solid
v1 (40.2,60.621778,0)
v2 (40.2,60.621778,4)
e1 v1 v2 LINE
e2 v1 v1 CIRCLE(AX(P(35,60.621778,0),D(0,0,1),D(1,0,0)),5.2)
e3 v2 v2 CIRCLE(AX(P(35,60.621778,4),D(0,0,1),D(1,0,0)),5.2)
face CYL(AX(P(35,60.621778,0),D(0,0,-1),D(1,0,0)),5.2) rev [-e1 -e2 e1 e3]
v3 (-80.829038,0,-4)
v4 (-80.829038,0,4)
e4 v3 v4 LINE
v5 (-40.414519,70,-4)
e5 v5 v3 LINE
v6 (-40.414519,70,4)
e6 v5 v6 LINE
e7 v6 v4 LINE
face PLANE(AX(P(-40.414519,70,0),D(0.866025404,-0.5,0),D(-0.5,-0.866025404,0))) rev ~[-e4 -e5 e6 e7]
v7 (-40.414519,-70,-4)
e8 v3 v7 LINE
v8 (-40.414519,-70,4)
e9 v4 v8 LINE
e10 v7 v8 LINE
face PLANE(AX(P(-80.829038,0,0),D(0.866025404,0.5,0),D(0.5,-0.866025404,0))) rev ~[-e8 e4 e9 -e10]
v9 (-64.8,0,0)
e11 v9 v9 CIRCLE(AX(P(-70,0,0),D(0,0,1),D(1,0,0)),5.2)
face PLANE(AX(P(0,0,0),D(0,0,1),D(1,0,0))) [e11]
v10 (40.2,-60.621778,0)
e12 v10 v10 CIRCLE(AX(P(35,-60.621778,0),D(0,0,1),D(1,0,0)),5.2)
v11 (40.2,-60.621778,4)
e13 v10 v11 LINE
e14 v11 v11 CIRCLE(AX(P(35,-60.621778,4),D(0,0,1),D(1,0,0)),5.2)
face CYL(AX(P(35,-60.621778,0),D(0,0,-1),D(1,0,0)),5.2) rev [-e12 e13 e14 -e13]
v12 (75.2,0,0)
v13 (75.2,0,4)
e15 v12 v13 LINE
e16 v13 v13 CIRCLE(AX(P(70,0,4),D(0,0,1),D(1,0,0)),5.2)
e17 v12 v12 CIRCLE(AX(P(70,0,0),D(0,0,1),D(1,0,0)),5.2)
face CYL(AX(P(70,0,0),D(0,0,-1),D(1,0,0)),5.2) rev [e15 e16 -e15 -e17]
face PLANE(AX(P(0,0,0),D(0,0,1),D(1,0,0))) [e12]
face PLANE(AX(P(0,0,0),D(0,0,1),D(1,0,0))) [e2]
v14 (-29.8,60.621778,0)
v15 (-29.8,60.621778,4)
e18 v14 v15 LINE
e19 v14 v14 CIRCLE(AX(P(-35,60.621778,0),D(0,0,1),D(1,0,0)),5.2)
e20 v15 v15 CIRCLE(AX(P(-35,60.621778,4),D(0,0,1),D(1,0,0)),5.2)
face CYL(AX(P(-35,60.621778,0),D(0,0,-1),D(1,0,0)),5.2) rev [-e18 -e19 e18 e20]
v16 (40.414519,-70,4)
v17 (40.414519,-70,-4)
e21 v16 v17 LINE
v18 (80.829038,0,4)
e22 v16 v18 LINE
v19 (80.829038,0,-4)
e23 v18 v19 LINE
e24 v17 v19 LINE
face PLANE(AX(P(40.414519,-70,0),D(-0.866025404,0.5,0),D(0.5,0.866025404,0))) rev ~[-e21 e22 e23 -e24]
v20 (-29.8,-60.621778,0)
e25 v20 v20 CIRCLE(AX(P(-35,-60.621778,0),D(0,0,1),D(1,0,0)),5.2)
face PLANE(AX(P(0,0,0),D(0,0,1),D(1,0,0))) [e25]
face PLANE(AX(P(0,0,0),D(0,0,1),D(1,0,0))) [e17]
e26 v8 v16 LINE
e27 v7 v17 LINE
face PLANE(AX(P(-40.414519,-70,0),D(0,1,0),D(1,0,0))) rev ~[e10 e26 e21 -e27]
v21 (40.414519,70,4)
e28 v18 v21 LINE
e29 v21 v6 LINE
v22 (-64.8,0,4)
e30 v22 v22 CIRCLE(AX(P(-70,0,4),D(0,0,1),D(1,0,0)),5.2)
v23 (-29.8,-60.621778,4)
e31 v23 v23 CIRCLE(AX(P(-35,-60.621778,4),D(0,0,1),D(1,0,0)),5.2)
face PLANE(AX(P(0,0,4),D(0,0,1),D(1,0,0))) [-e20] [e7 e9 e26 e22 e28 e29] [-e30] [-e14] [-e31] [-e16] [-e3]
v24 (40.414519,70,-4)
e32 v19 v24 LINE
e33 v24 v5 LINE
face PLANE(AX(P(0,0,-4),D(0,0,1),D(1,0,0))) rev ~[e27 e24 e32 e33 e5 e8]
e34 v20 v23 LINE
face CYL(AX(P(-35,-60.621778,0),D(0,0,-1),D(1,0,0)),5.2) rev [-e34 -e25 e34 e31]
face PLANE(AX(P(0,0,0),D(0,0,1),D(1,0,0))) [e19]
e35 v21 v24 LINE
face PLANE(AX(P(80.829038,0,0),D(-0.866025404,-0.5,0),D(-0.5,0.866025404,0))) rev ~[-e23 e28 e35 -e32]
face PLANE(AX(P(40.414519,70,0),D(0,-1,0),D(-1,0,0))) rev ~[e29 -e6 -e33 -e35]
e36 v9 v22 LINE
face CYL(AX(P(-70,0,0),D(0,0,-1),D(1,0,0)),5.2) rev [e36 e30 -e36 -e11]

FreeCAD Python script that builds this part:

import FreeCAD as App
import Part
import Sketcher

V = App.Vector
Q = App.Units.Quantity


def add_polygon(sketch, points):
    """Adds a closed chain of lines whose ends are joined by coincident constraints."""
    first, n = sketch.GeometryCount, len(points)
    for a, b in zip(points, points[1:] + points[:1]):
        sketch.addGeometry(Part.LineSegment(App.Vector(*a, 0), App.Vector(*b, 0)), False)
    for i in range(n):
        sketch.addConstraint(Sketcher.Constraint("Coincident", first + i, 2, first + (i + 1) % n, 1))

doc = App.newDocument("Part")
body = doc.addObject("PartDesign::Body", "Body")

# Sketch on XY plane
sketch1 = body.newObject("Sketcher::SketchObject", "Sketch")
sketch1.AttachmentSupport = (doc.getObject("XY_Plane"), [""])
sketch1.MapMode = "FlatFace"
add_polygon(sketch1, [(40.414519, 70), (-40.414519, 70), (-80.829038, 0), (-40.414519, -70), (40.414519, -70), (80.829038, 0)])  # lines 0-5
sketch1.addConstraint(Sketcher.Constraint("Horizontal", 0))
sketch1.addConstraint(Sketcher.Constraint("Horizontal", 3))
sketch1.addConstraint(Sketcher.Constraint("Symmetric", 0, 2, 3, 2, -1, 1))
sketch1.addConstraint(Sketcher.Constraint("Symmetric", 1, 2, 4, 2, -1, 1))
sketch1.addConstraint(Sketcher.Constraint("PointOnObject", 1, 2, -1))
sketch1.addConstraint(Sketcher.Constraint("Parallel", 2, 5))
sketch1.addConstraint(Sketcher.Constraint("Vertical", 0, 2, 2, 2))
sketch1.addConstraint(Sketcher.Constraint("Angle", 1, Q("-120 deg")))
sketch1.addConstraint(Sketcher.Constraint("DistanceY", -1, 1, 0, 2, Q("70 mm")))
sketch1.addConstraint(Sketcher.Constraint("DistanceX", 0, 2, 0, 1, Q("80.829038 mm")))
pad1 = body.newObject("PartDesign::Pad", "Pad")
pad1.Profile = sketch1
pad1.Length = 4
pad1.Reversed = True

# Sketch on XY plane
sketch2 = body.newObject("Sketcher::SketchObject", "Sketch001")
sketch2.AttachmentSupport = (doc.getObject("XY_Plane"), [""])
sketch2.MapMode = "FlatFace"
add_polygon(sketch2, [(40.414519, 70), (-40.414519, 70), (-80.829038, 0), (-40.414519, -70), (40.414519, -70), (80.829038, 0)])  # lines 0-5
sketch2.addGeometry(Part.Circle(V(-35, -60.621778, 0), V(0, 0, 1), 5.2), False)  # 6
sketch2.addGeometry(Part.Circle(V(35, -60.621778, 0), V(0, 0, 1), 5.2), False)  # 7
sketch2.addGeometry(Part.Circle(V(-70, 0, 0), V(0, 0, 1), 5.2), False)  # 8
sketch2.addGeometry(Part.Circle(V(-35, 60.621778, 0), V(0, 0, 1), 5.2), False)  # 9
sketch2.addGeometry(Part.Circle(V(70, 0, 0), V(0, 0, 1), 5.2), False)  # 10
sketch2.addGeometry(Part.Circle(V(35, 60.621778, 0), V(0, 0, 1), 5.2), False)  # 11
sketch2.addConstraint(Sketcher.Constraint("Horizontal", 0))
sketch2.addConstraint(Sketcher.Constraint("Horizontal", 3))
sketch2.addConstraint(Sketcher.Constraint("Equal", 6, 7))
sketch2.addConstraint(Sketcher.Constraint("Equal", 7, 8))
sketch2.addConstraint(Sketcher.Constraint("Equal", 8, 9))
sketch2.addConstraint(Sketcher.Constraint("Equal", 9, 10))
sketch2.addConstraint(Sketcher.Constraint("Equal", 10, 11))
sketch2.addConstraint(Sketcher.Constraint("Symmetric", 7, 3, 9, 3, -1, 1))
sketch2.addConstraint(Sketcher.Constraint("Symmetric", 8, 3, 10, 3, -1, 1))
sketch2.addConstraint(Sketcher.Constraint("Symmetric", 6, 3, 11, 3, -1, 1))
sketch2.addConstraint(Sketcher.Constraint("Symmetric", 0, 2, 3, 2, -1, 1))
sketch2.addConstraint(Sketcher.Constraint("Symmetric", 1, 2, 4, 2, -1, 1))
sketch2.addConstraint(Sketcher.Constraint("Symmetric", 6, 3, 7, 3, -2))
sketch2.addConstraint(Sketcher.Constraint("PointOnObject", 8, 3, -1))
sketch2.addConstraint(Sketcher.Constraint("PointOnObject", 1, 2, -1))
sketch2.addConstraint(Sketcher.Constraint("Parallel", 2, 5))
sketch2.addConstraint(Sketcher.Constraint("Vertical", 0, 2, 2, 2))
sketch2.addConstraint(Sketcher.Constraint("Diameter", 6, Q("10.4 mm")))
sketch2.addConstraint(Sketcher.Constraint("Angle", 1, Q("-120 deg")))
sketch2.addConstraint(Sketcher.Constraint("DistanceX", 6, 3, -1, 1, Q("35 mm")))
sketch2.addConstraint(Sketcher.Constraint("DistanceX", 8, 3, -1, 1, Q("70 mm")))
sketch2.addConstraint(Sketcher.Constraint("DistanceY", -1, 1, 0, 2, Q("70 mm")))
sketch2.addConstraint(Sketcher.Constraint("DistanceX", 0, 2, 0, 1, Q("80.829038 mm")))
sketch2.addConstraint(Sketcher.Constraint("DistanceY", 6, 3, -1, 1, Q("60.621778 mm")))
pad2 = body.newObject("PartDesign::Pad", "Pad001")
pad2.Profile = sketch2
pad2.Length = 4

doc.recompute()
